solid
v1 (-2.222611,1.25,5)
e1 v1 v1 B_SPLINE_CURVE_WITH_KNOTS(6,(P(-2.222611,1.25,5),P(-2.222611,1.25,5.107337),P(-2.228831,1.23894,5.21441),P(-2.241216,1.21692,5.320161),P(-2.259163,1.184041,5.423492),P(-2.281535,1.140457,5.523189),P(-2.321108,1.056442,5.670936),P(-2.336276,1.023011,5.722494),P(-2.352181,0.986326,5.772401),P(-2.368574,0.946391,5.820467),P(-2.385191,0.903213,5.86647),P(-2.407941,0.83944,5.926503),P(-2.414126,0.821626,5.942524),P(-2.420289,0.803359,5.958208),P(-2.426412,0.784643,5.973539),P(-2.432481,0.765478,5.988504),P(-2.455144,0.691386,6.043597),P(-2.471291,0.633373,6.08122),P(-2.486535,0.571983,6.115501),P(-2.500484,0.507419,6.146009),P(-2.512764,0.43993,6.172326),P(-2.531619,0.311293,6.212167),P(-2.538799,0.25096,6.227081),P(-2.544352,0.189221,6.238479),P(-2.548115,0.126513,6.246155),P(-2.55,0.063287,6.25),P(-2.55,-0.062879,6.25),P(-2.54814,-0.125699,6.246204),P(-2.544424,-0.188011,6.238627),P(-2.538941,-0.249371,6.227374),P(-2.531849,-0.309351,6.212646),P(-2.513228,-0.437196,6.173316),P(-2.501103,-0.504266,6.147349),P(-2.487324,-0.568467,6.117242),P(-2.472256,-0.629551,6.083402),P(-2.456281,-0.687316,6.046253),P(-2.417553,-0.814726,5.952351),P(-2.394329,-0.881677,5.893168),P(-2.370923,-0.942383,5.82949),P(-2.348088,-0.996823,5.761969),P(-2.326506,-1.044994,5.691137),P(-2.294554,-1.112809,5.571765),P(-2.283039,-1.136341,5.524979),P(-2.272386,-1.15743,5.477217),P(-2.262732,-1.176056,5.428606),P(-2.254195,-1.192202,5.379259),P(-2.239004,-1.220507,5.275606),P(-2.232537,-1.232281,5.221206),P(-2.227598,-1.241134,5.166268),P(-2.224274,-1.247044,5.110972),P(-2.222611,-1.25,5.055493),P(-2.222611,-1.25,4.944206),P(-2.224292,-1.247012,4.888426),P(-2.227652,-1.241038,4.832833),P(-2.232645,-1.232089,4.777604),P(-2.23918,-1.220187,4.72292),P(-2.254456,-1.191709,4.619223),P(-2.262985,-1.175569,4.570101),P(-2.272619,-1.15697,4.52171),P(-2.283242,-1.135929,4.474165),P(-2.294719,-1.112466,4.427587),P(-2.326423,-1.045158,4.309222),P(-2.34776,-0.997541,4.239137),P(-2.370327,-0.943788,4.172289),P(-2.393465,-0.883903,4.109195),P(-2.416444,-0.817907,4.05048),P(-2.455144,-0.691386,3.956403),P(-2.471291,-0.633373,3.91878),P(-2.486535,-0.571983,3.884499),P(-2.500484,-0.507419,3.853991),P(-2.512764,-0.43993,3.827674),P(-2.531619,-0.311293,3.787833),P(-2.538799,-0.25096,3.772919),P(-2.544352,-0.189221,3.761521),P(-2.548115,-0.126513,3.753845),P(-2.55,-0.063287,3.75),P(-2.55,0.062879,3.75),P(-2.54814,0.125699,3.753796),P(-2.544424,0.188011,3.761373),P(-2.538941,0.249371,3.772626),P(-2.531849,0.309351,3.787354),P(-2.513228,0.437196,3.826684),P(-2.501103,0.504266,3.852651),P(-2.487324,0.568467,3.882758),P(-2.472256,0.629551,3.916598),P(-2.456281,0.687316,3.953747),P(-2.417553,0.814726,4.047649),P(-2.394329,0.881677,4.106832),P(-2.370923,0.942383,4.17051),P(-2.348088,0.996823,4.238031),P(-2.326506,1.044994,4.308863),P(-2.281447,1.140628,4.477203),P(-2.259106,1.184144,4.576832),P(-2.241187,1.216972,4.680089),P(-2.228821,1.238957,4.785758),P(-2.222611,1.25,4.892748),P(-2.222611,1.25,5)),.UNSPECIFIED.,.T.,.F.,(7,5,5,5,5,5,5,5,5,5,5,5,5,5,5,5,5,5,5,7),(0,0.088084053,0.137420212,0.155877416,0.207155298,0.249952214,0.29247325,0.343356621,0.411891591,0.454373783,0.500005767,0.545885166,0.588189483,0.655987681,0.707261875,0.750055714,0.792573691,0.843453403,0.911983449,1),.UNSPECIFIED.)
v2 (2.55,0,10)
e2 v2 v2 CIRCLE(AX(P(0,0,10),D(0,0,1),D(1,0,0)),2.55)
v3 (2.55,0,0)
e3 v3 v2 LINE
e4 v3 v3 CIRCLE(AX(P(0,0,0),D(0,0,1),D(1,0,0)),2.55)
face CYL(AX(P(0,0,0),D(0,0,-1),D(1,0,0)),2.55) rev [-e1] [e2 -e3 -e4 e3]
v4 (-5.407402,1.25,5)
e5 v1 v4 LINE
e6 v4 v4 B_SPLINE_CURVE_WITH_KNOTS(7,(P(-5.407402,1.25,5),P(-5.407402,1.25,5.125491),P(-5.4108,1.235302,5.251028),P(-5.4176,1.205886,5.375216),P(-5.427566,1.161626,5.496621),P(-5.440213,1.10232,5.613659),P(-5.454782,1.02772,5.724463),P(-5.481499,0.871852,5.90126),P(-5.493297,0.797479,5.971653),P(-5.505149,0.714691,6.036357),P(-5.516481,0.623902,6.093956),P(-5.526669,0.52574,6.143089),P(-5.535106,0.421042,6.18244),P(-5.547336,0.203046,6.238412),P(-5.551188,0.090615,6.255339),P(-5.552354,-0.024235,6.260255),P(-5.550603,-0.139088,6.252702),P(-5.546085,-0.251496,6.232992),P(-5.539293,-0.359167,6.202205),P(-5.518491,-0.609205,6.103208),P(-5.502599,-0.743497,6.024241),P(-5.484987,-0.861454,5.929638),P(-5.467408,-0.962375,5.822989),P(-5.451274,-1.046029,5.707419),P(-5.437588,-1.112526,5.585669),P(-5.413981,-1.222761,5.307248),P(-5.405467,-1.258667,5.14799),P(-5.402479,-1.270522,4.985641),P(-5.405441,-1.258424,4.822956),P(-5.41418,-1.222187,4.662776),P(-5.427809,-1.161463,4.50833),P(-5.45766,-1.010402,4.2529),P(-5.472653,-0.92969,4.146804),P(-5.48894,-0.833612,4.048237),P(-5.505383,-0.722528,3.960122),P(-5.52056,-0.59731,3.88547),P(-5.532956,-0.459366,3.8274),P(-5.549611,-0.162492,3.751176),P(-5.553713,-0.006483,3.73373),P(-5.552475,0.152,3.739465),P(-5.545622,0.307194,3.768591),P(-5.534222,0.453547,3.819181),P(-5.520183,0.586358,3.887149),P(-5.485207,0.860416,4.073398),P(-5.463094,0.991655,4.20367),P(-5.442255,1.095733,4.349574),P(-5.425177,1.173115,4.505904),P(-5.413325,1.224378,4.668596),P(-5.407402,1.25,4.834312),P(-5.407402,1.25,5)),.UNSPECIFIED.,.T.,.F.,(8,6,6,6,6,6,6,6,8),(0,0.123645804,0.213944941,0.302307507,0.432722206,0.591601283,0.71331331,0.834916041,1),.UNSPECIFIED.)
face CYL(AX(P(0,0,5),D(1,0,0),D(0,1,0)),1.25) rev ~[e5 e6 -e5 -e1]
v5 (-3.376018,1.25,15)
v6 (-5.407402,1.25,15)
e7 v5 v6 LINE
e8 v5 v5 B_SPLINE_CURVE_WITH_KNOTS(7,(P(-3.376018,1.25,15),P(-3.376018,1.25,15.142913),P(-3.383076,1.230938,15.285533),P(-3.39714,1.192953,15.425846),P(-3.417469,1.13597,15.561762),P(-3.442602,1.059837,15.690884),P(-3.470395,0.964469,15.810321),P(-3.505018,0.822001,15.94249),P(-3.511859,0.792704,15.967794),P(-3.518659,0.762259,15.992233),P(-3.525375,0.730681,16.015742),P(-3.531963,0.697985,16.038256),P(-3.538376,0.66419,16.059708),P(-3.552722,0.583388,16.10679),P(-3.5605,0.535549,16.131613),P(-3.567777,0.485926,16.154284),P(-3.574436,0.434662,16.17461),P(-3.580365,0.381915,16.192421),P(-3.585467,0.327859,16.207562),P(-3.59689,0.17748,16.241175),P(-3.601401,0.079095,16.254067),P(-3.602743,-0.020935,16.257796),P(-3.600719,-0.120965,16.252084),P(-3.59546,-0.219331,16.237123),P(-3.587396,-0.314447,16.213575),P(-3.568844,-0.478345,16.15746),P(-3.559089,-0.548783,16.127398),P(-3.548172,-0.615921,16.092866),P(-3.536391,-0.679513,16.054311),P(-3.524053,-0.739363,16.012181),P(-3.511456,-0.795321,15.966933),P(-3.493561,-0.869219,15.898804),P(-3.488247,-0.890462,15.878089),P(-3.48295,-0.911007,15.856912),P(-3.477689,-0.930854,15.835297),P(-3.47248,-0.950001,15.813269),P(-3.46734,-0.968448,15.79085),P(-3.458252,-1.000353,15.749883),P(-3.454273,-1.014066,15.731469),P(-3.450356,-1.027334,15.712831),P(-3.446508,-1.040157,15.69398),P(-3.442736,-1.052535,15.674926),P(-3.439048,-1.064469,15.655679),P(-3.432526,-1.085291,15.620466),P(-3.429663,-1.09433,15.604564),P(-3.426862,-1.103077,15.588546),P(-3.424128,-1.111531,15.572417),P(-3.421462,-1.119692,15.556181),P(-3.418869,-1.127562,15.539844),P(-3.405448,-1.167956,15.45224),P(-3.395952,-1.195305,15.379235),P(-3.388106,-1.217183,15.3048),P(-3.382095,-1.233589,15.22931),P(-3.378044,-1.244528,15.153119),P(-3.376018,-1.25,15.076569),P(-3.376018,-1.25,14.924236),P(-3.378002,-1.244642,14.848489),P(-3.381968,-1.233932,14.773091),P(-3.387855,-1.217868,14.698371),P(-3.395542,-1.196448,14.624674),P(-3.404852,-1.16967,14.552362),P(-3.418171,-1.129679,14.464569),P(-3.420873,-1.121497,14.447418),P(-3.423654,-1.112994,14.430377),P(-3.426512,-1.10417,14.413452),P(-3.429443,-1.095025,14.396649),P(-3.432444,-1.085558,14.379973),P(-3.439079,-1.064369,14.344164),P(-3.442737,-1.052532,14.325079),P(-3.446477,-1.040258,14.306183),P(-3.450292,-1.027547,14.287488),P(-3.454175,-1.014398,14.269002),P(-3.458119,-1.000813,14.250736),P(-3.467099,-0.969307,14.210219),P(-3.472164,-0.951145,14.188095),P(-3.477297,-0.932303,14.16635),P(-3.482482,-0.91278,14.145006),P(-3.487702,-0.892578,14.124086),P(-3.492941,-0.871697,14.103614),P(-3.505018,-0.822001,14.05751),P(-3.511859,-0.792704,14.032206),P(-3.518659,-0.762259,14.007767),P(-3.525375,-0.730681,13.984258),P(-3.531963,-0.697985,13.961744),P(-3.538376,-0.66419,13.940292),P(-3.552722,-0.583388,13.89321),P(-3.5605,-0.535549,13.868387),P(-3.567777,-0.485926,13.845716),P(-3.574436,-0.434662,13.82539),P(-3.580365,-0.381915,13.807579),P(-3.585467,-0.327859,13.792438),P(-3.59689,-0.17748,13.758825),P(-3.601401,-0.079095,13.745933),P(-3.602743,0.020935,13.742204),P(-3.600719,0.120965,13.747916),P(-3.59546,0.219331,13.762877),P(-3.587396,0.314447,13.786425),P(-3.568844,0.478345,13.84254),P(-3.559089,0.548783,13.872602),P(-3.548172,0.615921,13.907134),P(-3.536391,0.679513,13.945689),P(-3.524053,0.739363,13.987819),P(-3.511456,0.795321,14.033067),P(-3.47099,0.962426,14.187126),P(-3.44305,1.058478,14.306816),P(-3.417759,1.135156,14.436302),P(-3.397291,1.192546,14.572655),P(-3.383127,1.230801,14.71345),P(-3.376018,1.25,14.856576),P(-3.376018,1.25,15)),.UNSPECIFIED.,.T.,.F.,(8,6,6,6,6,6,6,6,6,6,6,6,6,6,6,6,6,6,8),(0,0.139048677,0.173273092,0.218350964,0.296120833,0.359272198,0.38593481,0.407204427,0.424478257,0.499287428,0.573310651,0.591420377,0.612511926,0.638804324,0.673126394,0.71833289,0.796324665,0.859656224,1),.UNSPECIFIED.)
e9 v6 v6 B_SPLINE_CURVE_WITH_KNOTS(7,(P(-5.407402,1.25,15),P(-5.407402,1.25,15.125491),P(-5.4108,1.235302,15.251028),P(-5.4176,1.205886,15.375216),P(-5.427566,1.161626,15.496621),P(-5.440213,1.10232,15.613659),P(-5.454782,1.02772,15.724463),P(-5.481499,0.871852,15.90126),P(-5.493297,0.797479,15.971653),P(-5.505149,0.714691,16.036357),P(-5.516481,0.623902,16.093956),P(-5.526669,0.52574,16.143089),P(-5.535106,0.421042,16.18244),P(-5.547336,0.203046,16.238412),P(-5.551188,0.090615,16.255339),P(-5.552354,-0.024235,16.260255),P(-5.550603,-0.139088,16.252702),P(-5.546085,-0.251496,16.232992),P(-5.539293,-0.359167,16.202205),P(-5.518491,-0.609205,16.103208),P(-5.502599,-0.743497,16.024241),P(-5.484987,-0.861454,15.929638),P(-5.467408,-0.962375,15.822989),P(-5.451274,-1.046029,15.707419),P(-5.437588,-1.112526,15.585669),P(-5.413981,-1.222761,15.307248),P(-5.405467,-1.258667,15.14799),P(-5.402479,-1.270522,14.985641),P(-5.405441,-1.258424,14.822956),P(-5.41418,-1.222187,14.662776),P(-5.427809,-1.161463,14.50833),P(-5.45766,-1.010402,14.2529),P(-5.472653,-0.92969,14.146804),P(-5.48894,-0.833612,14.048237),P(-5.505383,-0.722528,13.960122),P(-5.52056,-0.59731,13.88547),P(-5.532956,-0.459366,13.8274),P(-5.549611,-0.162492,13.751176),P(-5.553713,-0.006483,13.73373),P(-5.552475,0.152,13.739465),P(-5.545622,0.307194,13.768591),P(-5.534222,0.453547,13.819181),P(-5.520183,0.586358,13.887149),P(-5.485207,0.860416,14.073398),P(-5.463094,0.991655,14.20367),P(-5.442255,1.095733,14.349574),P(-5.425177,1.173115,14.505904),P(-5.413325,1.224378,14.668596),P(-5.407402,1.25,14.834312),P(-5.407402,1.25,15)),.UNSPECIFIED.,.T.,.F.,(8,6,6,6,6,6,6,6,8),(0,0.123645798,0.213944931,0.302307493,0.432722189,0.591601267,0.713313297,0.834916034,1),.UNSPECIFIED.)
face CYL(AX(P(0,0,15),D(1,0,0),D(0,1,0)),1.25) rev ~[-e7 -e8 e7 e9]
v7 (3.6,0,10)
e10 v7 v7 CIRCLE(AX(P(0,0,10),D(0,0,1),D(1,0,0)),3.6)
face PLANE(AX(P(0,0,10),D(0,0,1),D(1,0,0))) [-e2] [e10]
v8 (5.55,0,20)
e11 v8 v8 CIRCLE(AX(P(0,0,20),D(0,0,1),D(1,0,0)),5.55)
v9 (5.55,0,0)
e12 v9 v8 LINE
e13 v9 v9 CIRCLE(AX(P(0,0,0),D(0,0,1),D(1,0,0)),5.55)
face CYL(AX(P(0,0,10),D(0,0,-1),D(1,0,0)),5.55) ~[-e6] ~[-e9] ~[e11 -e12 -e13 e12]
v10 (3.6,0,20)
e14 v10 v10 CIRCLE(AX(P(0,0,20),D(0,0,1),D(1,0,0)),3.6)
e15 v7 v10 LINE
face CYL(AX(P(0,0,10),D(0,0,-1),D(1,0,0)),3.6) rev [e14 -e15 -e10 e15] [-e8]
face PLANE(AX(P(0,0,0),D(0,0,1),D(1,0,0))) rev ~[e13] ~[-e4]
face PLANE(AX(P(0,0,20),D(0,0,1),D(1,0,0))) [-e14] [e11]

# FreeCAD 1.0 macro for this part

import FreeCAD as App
import Part
import Sketcher

doc = App.newDocument("Part")
body = doc.addObject("PartDesign::Body", "Body")

# Sketch on XY plane
sketch1 = doc.addObject("Sketcher::SketchObject", "Sketch")
body.addObject(sketch1)
sketch1.AttachmentSupport = (doc.XY_Plane, [""])
sketch1.MapMode = "FlatFace"
sketch1.addGeometry(Part.Circle(App.Vector(0, 0, 0), App.Vector(0, 0, 1), 5.5), False)
sketch1.addGeometry(Part.Circle(App.Vector(0, 0, 0), App.Vector(0, 0, 1), 2.5), False)
sketch1.addConstraint(Sketcher.Constraint("Coincident", 0, 3, -1, 1))
sketch1.addConstraint(Sketcher.Constraint("Coincident", 1, 3, -1, 1))
sketch1.addConstraint(Sketcher.Constraint("Diameter", 0, 11.1))
sketch1.addConstraint(Sketcher.Constraint("Diameter", 1, 5.1))
pad1 = doc.addObject("PartDesign::Pad", "Pad")
body.addObject(pad1)
pad1.Profile = sketch1
pad1.Length = 10

# Sketch on XY plane
sketch2 = doc.addObject("Sketcher::SketchObject", "Sketch001")
body.addObject(sketch2)
sketch2.AttachmentSupport = (doc.XY_Plane, [""])
sketch2.MapMode = "FlatFace"
sketch2.AttachmentOffset = App.Placement(App.Vector(0, 0, 10), App.Rotation())
sketch2.addGeometry(Part.Circle(App.Vector(0, 0, 0), App.Vector(0, 0, 1), 5.5), False)
sketch2.addGeometry(Part.Circle(App.Vector(0, 0, 0), App.Vector(0, 0, 1), 3.6), False)
sketch2.addConstraint(Sketcher.Constraint("Coincident", 0, 3, -1, 1))
sketch2.addConstraint(Sketcher.Constraint("Coincident", 1, 3, -1, 1))
sketch2.addConstraint(Sketcher.Constraint("Diameter", 0, 11.1))
sketch2.addConstraint(Sketcher.Constraint("Diameter", 1, 7.2))
pad2 = doc.addObject("PartDesign::Pad", "Pad001")
body.addObject(pad2)
pad2.Profile = sketch2
pad2.Length = 10

# Sketch on YZ plane
sketch3 = doc.addObject("Sketcher::SketchObject", "Sketch002")
body.addObject(sketch3)
sketch3.AttachmentSupport = (doc.YZ_Plane, [""])
sketch3.MapMode = "FlatFace"
sketch3.addGeometry(Part.Circle(App.Vector(0, 15, 0), App.Vector(0, 0, 1), 1.2), False)
sketch3.addGeometry(Part.Circle(App.Vector(0, 5, 0), App.Vector(0, 0, 1), 1.2), False)
sketch3.addConstraint(Sketcher.Constraint("Equal", 0, 1))
sketch3.addConstraint(Sketcher.Constraint("PointOnObject", 0, 3, -2))
sketch3.addConstraint(Sketcher.Constraint("PointOnObject", 1, 3, -2))
sketch3.addConstraint(Sketcher.Constraint("Diameter", 0, 2.5))
sketch3.addConstraint(Sketcher.Constraint("DistanceY", -1, 1, 0, 3, 15.0))
sketch3.addConstraint(Sketcher.Constraint("DistanceY", -1, 1, 1, 3, 5.0))
pocket1 = doc.addObject("PartDesign::Pocket", "Pocket")
body.addObject(pocket1)
pocket1.Profile = sketch3
pocket1.Type = "ThroughAll"

doc.recompute()
